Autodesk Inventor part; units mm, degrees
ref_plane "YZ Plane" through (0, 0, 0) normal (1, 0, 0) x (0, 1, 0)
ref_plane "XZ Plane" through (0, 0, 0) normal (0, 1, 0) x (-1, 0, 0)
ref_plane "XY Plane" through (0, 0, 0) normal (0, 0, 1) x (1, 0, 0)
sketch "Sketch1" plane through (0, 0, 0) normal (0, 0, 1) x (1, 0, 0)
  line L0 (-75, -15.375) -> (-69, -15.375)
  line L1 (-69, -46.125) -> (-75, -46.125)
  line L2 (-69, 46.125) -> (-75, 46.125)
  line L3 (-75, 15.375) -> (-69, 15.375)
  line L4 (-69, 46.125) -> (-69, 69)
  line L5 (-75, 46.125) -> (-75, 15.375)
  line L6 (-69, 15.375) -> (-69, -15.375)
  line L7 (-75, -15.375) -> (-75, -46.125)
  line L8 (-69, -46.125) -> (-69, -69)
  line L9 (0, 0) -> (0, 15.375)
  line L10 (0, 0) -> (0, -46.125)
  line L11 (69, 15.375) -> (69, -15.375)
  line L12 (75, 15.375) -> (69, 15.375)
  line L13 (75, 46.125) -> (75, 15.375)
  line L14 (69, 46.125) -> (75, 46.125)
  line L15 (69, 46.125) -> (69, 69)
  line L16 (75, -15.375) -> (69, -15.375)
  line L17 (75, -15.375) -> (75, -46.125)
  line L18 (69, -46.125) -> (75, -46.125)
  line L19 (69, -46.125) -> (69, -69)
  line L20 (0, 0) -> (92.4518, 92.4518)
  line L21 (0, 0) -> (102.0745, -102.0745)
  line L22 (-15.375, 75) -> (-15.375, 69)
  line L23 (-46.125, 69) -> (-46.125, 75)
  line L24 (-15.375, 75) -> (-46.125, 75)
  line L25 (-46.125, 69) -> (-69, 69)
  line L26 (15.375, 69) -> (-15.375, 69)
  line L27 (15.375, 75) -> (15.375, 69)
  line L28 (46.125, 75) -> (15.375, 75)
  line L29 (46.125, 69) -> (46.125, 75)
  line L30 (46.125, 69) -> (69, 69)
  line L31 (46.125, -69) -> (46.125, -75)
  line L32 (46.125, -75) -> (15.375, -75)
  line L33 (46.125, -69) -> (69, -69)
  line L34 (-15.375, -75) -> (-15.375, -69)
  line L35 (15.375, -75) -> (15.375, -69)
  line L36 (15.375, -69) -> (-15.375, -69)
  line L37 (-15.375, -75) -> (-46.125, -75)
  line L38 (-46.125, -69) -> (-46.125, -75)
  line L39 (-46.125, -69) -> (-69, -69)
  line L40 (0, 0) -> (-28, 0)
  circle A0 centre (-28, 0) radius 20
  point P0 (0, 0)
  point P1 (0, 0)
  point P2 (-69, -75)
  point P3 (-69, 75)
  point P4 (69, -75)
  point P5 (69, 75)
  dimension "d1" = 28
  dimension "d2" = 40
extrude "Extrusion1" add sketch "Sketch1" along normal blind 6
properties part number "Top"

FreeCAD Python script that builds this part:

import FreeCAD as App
import Part
import Sketcher
from FreeCAD import Vector
Q = App.Units.Quantity


def add_polygon(sketch, points):
    """Adds a closed chain of lines whose ends are joined by coincident constraints."""
    first, n = sketch.GeometryCount, len(points)
    for a, b in zip(points, points[1:] + points[:1]):
        sketch.addGeometry(Part.LineSegment(App.Vector(*a, 0), App.Vector(*b, 0)), False)
    for i in range(n):
        sketch.addConstraint(Sketcher.Constraint("Coincident", first + i, 2, first + (i + 1) % n, 1))

doc = App.newDocument("Part")
params = doc.addObject("Spreadsheet::Sheet", "Params")
for row, (alias, value) in enumerate([
    ("sketch1_diameter", "40 mm"),
    ("sketch1_width", "6 mm"),
    ("sketch1_width2", "30.75 mm"),
    ("pad1_length", "6 mm"),
], start=1):
    params.set(f"A{row}", alias)
    params.set(f"B{row}", "=" + value)
    params.setAlias(f"B{row}", alias)

body = doc.addObject("PartDesign::Body", "Body")

# Sketch on XY plane
sketch1 = body.newObject("Sketcher::SketchObject", "Sketch")
sketch1.AttachmentSupport = (doc.getObject("XY_Plane"), [""])
sketch1.MapMode = "FlatFace"
add_polygon(sketch1, [(-69, -15), (-75, -15), (-75, -46), (-69, -46), (-69, -69), (-46, -69), (-46, -75), (-15, -75), (-15, -69), (15, -69), (15, -75), (46, -75), (46, -69), (69, -69), (69, -46), (75, -46), (75, -15), (69, -15), (69, 15), (75, 15), (75, 46), (69, 46), (69, 69), (46, 69), (46, 75), (15, 75), (15, 69), (-15, 69), (-15, 75), (-46, 75), (-46, 69), (-69, 69), (-69, 46), (-75, 46), (-75, 15), (-69, 15)])  # lines 0-35
sketch1.addGeometry(Part.Circle(Vector(-28, 0, 0), Vector(0, 0, 1), 20), False)  # 36
sketch1.addConstraint([
    Sketcher.Constraint("Horizontal", 0),
    Sketcher.Constraint("Vertical", 1),
    Sketcher.Constraint("Horizontal", 2),
    Sketcher.Constraint("Vertical", 3),
    Sketcher.Constraint("Horizontal", 4),
    Sketcher.Constraint("Vertical", 5),
    Sketcher.Constraint("Horizontal", 6),
    Sketcher.Constraint("Vertical", 7),
    Sketcher.Constraint("Horizontal", 8),
    Sketcher.Constraint("Vertical", 9),
    Sketcher.Constraint("Horizontal", 10),
    Sketcher.Constraint("Vertical", 11),
    Sketcher.Constraint("Horizontal", 12),
    Sketcher.Constraint("Vertical", 13),
    Sketcher.Constraint("Horizontal", 14),
    Sketcher.Constraint("Vertical", 15),
    Sketcher.Constraint("Horizontal", 16),
    Sketcher.Constraint("Vertical", 17),
    Sketcher.Constraint("Horizontal", 18),
    Sketcher.Constraint("Vertical", 19),
    Sketcher.Constraint("Horizontal", 20),
    Sketcher.Constraint("Vertical", 21),
    Sketcher.Constraint("Horizontal", 22),
    Sketcher.Constraint("Vertical", 23),
    Sketcher.Constraint("Horizontal", 24),
    Sketcher.Constraint("Vertical", 25),
    Sketcher.Constraint("Horizontal", 26),
    Sketcher.Constraint("Vertical", 27),
    Sketcher.Constraint("Horizontal", 28),
    Sketcher.Constraint("Vertical", 29),
    Sketcher.Constraint("Horizontal", 30),
    Sketcher.Constraint("Vertical", 31),
    Sketcher.Constraint("Horizontal", 32),
    Sketcher.Constraint("Vertical", 33),
    Sketcher.Constraint("Horizontal", 34),
    Sketcher.Constraint("Vertical", 35),
    Sketcher.Constraint("Symmetric", 0, 2, 18, 2, -1, 1),
    Sketcher.Constraint("Symmetric", 2, 2, 20, 2, -1, 1),
    Sketcher.Constraint("Symmetric", 4, 2, 22, 2, -1, 1),
    Sketcher.Constraint("Symmetric", 6, 2, 24, 2, -1, 1),
    Sketcher.Constraint("Symmetric", 8, 2, 26, 2, -1, 1),
    Sketcher.Constraint("Symmetric", 10, 2, 28, 2, -1, 1),
    Sketcher.Constraint("Symmetric", 12, 2, 30, 2, -1, 1),
    Sketcher.Constraint("Symmetric", 14, 2, 32, 2, -1, 1),
    Sketcher.Constraint("Symmetric", 16, 2, 34, 2, -1, 1),
    Sketcher.Constraint("Symmetric", 6, 2, 9, 2, -2),
    Sketcher.Constraint("Symmetric", 4, 2, 11, 2, -2),
    Sketcher.Constraint("Symmetric", 2, 2, 13, 2, -2),
    Sketcher.Constraint("Symmetric", 0, 2, 15, 2, -2),
    Sketcher.Constraint("PointOnObject", 36, 3, -1),
    Sketcher.Constraint("Horizontal", 4, 2, 7, 2),
    Sketcher.Constraint("Vertical", 13, 2, 16, 2),
    Sketcher.Constraint("Equal", 6, 8),
    Sketcher.Constraint("Equal", 28, 1),
    Sketcher.Constraint("Equal", 30, 3),
    Sketcher.Constraint("Equal", 34, 5),
    Sketcher.Constraint("Equal", 15, 17),
    Sketcher.Constraint("Diameter", 36, Q("40 mm")),
    Sketcher.Constraint("DistanceX", 36, 3, -1, 1, Q("28 mm")),
    Sketcher.Constraint("DistanceX", 0, 2, 0, 1, Q("6 mm")),
    Sketcher.Constraint("DistanceX", 0, 2, -1, 1, Q("75 mm")),
    Sketcher.Constraint("DistanceX", 6, 1, 6, 2, Q("30.75 mm")),
])
sketch1.setExpression("Constraints[93]", "Params.sketch1_diameter")
sketch1.setExpression("Constraints[95]", "Params.sketch1_width")
sketch1.setExpression("Constraints[97]", "Params.sketch1_width2")
pad1 = body.newObject("PartDesign::Pad", "Pad")
pad1.Profile = sketch1
pad1.setExpression("Length", "Params.pad1_length")

doc.recompute()
